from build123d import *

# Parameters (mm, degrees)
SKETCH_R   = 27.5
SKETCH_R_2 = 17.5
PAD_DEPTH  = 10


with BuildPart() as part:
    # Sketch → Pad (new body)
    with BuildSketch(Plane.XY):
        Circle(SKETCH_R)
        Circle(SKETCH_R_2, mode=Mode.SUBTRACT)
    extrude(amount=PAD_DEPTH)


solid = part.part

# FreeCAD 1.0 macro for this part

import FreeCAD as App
import Part
import Sketcher
from FreeCAD import Vector

doc = App.newDocument("Part")
body = doc.addObject("PartDesign::Body", "Body")

# Sketch on XY plane
sketch1 = body.newObject("Sketcher::SketchObject", "Sketch")
sketch1.AttachmentSupport = (doc.getObject("XY_Plane"), [""])
sketch1.MapMode = "FlatFace"
sketch1.addGeometry([
    Part.Circle(Vector(0, 0, 0), Vector(0, 0, 1), 28),
    Part.Circle(Vector(0, 0, 0), Vector(0, 0, 1), 18),
], False)
sketch1.addConstraint([
    Sketcher.Constraint("Coincident", 0, 3, -1, 1),
    Sketcher.Constraint("Coincident", 1, 3, -1, 1),
    Sketcher.Constraint("Diameter", 0, 55.0),
    Sketcher.Constraint("Diameter", 1, 35.0),
])
pad1 = body.newObject("PartDesign::Pad", "Pad")
pad1.Profile = sketch1
pad1.Length = 10

doc.recompute()
